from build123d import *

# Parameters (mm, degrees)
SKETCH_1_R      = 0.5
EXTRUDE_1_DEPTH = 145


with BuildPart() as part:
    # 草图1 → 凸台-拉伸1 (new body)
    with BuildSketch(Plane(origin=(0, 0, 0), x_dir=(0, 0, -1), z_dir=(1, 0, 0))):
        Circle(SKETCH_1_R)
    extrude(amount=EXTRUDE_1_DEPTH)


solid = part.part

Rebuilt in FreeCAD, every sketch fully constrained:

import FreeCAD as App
import Part
import Sketcher
Q = App.Units.Quantity

doc = App.newDocument("Part")
params = doc.addObject("Spreadsheet::Sheet", "Params")
for row, (alias, value) in enumerate([
    ("sketch1_diameter", "1 mm"),
    ("pad1_length", "145 mm"),
], start=1):
    params.set(f"A{row}", alias)
    params.set(f"B{row}", "=" + value)
    params.setAlias(f"B{row}", alias)

body = doc.addObject("PartDesign::Body", "Body")

# Sketch on YZ plane
sketch1 = doc.addObject("Sketcher::SketchObject", "Sketch")
body.addObject(sketch1)
sketch1.AttachmentSupport = (doc.YZ_Plane, [""])
sketch1.MapMode = "FlatFace"
sketch1.addGeometry(Part.Circle(App.Vector(0, 0, 0), App.Vector(0, 0, 1), 0.5), False)
sketch1.addConstraint(Sketcher.Constraint("Coincident", 0, 3, -1, 1))
sketch1.addConstraint(Sketcher.Constraint("Diameter", 0, Q("1 mm")))
sketch1.setExpression("Constraints[1]", "Params.sketch1_diameter")
pad1 = doc.addObject("PartDesign::Pad", "Pad")
body.addObject(pad1)
pad1.Profile = sketch1
pad1.setExpression("Length", "Params.pad1_length")

doc.recompute()
